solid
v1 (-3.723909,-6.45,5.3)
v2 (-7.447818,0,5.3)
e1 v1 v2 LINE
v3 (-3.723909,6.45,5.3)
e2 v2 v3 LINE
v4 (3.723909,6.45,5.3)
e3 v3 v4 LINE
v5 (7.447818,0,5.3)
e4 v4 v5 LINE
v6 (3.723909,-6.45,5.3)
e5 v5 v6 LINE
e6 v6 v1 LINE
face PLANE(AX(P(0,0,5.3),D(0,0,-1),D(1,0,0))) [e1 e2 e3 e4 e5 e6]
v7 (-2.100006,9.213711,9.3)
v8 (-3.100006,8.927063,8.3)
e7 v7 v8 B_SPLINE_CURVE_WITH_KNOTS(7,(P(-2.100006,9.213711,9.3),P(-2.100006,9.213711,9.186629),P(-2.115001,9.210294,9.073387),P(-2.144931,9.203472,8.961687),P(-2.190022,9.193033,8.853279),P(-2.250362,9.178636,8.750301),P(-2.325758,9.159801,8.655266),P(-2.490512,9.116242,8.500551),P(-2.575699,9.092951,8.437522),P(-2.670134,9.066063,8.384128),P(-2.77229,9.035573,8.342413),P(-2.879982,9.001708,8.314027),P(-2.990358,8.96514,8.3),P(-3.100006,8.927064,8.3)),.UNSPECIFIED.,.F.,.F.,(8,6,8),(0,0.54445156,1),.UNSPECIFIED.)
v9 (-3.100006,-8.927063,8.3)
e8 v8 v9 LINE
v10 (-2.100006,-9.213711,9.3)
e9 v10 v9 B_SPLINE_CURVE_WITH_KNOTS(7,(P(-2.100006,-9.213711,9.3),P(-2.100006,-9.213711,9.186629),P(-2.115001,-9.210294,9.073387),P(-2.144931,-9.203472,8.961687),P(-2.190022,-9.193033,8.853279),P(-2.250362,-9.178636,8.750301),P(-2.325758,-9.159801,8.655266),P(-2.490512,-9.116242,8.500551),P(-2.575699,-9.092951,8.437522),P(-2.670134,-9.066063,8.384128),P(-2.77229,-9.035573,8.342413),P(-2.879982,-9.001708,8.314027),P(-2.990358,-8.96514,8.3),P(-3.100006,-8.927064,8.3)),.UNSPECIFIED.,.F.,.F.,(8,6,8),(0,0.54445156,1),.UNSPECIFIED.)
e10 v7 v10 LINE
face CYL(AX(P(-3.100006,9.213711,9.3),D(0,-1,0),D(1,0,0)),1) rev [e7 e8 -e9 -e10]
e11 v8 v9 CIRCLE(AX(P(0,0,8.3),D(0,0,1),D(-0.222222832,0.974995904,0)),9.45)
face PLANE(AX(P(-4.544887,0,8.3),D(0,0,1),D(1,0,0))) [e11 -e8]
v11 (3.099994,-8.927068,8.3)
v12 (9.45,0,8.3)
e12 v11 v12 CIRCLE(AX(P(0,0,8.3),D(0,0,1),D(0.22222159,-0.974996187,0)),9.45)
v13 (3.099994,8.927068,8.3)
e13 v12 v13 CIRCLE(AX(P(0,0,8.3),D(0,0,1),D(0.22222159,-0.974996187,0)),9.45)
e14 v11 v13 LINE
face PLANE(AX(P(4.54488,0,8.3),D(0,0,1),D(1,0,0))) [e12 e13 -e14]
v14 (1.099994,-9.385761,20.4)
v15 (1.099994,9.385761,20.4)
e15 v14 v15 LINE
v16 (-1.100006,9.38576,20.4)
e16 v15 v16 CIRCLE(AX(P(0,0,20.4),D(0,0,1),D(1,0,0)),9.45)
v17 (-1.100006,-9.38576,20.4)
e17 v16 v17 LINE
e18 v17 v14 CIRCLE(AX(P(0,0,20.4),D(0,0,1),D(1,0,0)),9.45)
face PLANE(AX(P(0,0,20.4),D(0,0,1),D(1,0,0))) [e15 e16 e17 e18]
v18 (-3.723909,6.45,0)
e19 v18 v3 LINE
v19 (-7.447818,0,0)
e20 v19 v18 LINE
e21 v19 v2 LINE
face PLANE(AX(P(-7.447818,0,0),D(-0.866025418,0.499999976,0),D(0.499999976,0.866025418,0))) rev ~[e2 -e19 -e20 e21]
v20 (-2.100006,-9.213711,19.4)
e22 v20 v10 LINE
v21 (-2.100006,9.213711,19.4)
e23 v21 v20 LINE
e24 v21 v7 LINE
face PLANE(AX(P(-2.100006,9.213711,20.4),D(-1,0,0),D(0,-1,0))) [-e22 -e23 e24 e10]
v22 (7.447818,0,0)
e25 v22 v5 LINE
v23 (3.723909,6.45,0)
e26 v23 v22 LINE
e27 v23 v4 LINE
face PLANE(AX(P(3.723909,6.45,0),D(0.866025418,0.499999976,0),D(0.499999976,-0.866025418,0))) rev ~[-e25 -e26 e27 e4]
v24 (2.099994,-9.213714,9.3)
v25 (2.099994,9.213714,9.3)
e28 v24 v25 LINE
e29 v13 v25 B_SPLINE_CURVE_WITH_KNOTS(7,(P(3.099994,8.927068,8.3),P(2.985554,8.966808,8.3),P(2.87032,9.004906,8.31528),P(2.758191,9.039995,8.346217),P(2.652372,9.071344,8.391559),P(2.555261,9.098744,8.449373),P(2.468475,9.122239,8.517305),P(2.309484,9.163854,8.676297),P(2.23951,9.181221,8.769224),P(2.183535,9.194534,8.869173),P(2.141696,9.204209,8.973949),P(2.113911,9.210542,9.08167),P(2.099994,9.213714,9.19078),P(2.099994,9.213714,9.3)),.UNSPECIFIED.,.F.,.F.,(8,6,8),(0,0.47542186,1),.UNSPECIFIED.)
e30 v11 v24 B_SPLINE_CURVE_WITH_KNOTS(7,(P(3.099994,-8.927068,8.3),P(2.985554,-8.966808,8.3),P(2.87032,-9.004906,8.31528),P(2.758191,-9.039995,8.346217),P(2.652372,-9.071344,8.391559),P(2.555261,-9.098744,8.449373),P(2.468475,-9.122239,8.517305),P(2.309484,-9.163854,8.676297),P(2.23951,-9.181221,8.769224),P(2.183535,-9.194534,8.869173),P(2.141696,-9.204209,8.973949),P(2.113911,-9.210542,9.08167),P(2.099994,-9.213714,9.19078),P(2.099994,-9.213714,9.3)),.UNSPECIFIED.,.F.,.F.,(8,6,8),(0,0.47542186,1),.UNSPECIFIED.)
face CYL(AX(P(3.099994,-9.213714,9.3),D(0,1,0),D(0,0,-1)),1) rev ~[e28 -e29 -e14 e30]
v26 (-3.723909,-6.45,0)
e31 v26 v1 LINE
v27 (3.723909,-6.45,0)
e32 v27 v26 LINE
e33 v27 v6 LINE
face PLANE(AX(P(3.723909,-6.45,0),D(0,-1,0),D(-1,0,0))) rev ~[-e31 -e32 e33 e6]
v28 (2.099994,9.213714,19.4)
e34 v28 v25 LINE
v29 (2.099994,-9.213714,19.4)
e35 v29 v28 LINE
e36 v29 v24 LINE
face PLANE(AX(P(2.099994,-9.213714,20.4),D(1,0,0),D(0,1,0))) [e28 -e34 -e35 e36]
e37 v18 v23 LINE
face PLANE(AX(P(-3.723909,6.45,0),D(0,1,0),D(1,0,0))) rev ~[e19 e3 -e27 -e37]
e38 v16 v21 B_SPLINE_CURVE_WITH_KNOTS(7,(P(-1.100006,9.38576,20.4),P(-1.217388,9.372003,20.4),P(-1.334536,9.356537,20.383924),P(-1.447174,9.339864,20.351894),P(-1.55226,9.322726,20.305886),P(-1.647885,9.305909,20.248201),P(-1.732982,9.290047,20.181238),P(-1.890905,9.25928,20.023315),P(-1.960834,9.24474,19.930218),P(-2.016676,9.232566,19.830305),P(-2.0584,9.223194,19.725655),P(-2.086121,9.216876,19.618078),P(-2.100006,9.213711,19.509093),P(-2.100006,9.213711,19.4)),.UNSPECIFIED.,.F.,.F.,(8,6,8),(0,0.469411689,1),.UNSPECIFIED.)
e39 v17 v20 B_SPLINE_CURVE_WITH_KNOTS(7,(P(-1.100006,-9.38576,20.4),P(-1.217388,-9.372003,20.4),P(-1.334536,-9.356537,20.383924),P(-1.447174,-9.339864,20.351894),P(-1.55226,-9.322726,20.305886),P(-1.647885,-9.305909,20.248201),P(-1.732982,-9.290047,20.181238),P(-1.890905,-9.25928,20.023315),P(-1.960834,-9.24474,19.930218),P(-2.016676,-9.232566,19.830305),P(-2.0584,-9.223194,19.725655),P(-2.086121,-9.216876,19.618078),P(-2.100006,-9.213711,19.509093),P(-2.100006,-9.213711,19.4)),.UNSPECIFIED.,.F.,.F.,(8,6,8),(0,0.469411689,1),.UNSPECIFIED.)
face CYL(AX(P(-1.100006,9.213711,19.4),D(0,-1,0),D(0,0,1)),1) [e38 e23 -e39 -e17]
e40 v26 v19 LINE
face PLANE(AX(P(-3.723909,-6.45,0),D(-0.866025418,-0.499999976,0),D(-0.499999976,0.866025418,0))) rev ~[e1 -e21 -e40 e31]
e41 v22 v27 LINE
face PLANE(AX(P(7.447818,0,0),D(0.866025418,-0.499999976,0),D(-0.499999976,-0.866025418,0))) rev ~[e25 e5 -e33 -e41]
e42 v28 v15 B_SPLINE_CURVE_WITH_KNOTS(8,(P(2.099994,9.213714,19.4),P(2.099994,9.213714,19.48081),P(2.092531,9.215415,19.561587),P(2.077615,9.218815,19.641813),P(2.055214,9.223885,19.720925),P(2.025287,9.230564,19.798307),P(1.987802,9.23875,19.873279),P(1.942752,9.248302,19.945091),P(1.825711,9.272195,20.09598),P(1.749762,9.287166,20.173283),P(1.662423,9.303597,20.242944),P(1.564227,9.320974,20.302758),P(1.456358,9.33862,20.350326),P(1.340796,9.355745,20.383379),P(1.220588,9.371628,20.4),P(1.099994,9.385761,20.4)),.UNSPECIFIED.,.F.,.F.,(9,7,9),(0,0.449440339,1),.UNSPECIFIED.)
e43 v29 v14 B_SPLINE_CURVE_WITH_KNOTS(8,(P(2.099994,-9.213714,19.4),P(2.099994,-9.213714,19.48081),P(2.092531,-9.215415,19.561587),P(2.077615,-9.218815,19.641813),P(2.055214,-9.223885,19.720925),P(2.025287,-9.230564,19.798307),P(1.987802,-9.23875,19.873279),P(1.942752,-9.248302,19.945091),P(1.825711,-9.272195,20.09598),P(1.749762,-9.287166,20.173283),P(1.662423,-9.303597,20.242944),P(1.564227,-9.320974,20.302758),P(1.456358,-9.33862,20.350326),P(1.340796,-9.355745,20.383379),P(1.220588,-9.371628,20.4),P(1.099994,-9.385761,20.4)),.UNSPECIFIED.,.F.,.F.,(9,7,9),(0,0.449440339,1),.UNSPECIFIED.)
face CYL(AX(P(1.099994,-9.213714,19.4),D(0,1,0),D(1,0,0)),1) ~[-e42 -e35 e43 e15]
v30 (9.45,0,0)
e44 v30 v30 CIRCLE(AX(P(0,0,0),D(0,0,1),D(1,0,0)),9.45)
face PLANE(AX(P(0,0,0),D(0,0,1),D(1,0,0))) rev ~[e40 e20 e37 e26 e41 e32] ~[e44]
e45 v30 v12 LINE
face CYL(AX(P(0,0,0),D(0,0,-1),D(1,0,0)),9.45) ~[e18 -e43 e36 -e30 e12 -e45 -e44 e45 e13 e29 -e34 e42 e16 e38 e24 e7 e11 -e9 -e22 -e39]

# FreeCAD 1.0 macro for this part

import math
import FreeCAD as App
import Part
import Sketcher

V = App.Vector
Q = App.Units.Quantity


def edges_at(feature, points):
    """Names of the edges that pass closest to the given points."""
    edges = feature.Shape.Edges
    near = lambda p: min(range(len(edges)), key=lambda i: edges[i].distToShape(Part.Vertex(*p))[0])
    return sorted({f"Edge{near(p) + 1}" for p in points})


def add_polygon(sketch, points):
    """Adds a closed chain of lines whose ends are joined by coincident constraints."""
    first, n = sketch.GeometryCount, len(points)
    for a, b in zip(points, points[1:] + points[:1]):
        sketch.addGeometry(Part.LineSegment(App.Vector(*a, 0), App.Vector(*b, 0)), False)
    for i in range(n):
        sketch.addConstraint(Sketcher.Constraint("Coincident", first + i, 2, first + (i + 1) % n, 1))

doc = App.newDocument("Part")
params = doc.addObject("Spreadsheet::Sheet", "Params")
for row, (alias, value) in enumerate([
    ("sketch1_diameter", "18.9 mm"),
    ("pad1_length", "20.4 mm"),
    ("sketch2_radius", "9.45 mm"),
    ("pocket1_length", "12.1 mm"),
    ("fillet_radius", "1 mm"),
    ("pocket2_length", "5.3 mm"),
], start=1):
    params.set(f"A{row}", alias)
    params.set(f"B{row}", "=" + value)
    params.setAlias(f"B{row}", alias)

body = doc.addObject("PartDesign::Body", "Body")

# Sketch on XY plane
sketch1 = body.newObject("Sketcher::SketchObject", "Sketch")
sketch1.AttachmentSupport = (doc.getObject("XY_Plane"), [""])
sketch1.MapMode = "FlatFace"
sketch1.addGeometry(Part.Circle(V(0, 0, 0), V(0, 0, 1), 9), False)
sketch1.addConstraint([
    Sketcher.Constraint("Coincident", 0, 3, -1, 1),
    Sketcher.Constraint("Diameter", 0, 18.9),
])
sketch1.setExpression("Constraints[1]", "Params.sketch1_diameter")
pad1 = body.newObject("PartDesign::Pad", "Pad")
pad1.Profile = sketch1
pad1.setExpression("Length", "Params.pad1_length")

# Sketch on XY plane
sketch2 = body.newObject("Sketcher::SketchObject", "Sketch001")
sketch2.AttachmentSupport = (doc.getObject("XY_Plane"), [""])
sketch2.MapMode = "FlatFace"
sketch2.AttachmentOffset = App.Placement(V(0, 0, 20.4), App.Rotation())
sketch2.addGeometry([
    Part.ArcOfCircle(Part.Circle(V(0, 0, 0), V(0, 0, 1), 9), math.radians(103), math.radians(257)),
    Part.LineSegment(V(-2, -9, 0), V(-2, 9, 0)),
    Part.ArcOfCircle(Part.Circle(V(0, 0, 0), V(0, 0, 1), 9), math.radians(-77), math.radians(77)),
    Part.LineSegment(V(2, 9, 0), V(2, -9, 0)),
], False)
sketch2.addConstraint([
    Sketcher.Constraint("Coincident", 0, 1, 1, 2),
    Sketcher.Constraint("Coincident", 1, 1, 0, 2),
    Sketcher.Constraint("Coincident", 2, 1, 3, 2),
    Sketcher.Constraint("Coincident", 3, 1, 2, 2),
    Sketcher.Constraint("Vertical", 1),
    Sketcher.Constraint("Vertical", 3),
    Sketcher.Constraint("Coincident", 0, 3, -1, 1),
    Sketcher.Constraint("Coincident", 2, 3, -1, 1),
    Sketcher.Constraint("Equal", 0, 2),
    Sketcher.Constraint("Radius", 0, 9.45),
    Sketcher.Constraint("DistanceX", 1, 1, 2, 1, 4.2),
    Sketcher.Constraint("DistanceY", 1, 1, 1, 2, 18.427422),
])
sketch2.setExpression("Constraints[9]", "Params.sketch2_radius")
pocket1 = body.newObject("PartDesign::Pocket", "Pocket")
pocket1.Profile = sketch2
pocket1.setExpression("Length", "Params.pocket1_length")
doc.recompute()

fillet = body.newObject("PartDesign::Fillet", "Fillet")
fillet.Base = (pocket1, edges_at(pocket1, [
    (2.1, 0, 20.4),
    (-2.1, 0, 20.4),
    (2.1, 0, 8.3),
    (-2.1, 0, 8.3),
]))
fillet.setExpression("Radius", "Params.fillet_radius")

# Sketch on XY plane
sketch3 = body.newObject("Sketcher::SketchObject", "Sketch002")
sketch3.AttachmentSupport = (doc.getObject("XY_Plane"), [""])
sketch3.MapMode = "FlatFace"
add_polygon(sketch3, [(-4, -6), (-7, 0), (-4, 6), (4, 6), (7, 0), (4, -6)])  # lines 0-5
sketch3.addConstraint([
    Sketcher.Constraint("Horizontal", 2),
    Sketcher.Constraint("Horizontal", 5),
    Sketcher.Constraint("Symmetric", 0, 2, 3, 2, -1, 1),
    Sketcher.Constraint("Symmetric", 1, 2, 4, 2, -1, 1),
    Sketcher.Constraint("PointOnObject", 0, 2, -1),
    Sketcher.Constraint("Parallel", 0, 3),
    Sketcher.Constraint("Vertical", 2, 2, 4, 2),
    Sketcher.Constraint("Angle", 0, Q("119.999998 deg")),
    Sketcher.Constraint("DistanceY", 4, 2, 2, 2, 12.9),
    Sketcher.Constraint("DistanceX", 2, 1, 2, 2, 7.447818),
])
pocket2 = body.newObject("PartDesign::Pocket", "Pocket001")
pocket2.Profile = sketch3
pocket2.setExpression("Length", "Params.pocket2_length")
pocket2.Reversed = True

doc.recompute()
